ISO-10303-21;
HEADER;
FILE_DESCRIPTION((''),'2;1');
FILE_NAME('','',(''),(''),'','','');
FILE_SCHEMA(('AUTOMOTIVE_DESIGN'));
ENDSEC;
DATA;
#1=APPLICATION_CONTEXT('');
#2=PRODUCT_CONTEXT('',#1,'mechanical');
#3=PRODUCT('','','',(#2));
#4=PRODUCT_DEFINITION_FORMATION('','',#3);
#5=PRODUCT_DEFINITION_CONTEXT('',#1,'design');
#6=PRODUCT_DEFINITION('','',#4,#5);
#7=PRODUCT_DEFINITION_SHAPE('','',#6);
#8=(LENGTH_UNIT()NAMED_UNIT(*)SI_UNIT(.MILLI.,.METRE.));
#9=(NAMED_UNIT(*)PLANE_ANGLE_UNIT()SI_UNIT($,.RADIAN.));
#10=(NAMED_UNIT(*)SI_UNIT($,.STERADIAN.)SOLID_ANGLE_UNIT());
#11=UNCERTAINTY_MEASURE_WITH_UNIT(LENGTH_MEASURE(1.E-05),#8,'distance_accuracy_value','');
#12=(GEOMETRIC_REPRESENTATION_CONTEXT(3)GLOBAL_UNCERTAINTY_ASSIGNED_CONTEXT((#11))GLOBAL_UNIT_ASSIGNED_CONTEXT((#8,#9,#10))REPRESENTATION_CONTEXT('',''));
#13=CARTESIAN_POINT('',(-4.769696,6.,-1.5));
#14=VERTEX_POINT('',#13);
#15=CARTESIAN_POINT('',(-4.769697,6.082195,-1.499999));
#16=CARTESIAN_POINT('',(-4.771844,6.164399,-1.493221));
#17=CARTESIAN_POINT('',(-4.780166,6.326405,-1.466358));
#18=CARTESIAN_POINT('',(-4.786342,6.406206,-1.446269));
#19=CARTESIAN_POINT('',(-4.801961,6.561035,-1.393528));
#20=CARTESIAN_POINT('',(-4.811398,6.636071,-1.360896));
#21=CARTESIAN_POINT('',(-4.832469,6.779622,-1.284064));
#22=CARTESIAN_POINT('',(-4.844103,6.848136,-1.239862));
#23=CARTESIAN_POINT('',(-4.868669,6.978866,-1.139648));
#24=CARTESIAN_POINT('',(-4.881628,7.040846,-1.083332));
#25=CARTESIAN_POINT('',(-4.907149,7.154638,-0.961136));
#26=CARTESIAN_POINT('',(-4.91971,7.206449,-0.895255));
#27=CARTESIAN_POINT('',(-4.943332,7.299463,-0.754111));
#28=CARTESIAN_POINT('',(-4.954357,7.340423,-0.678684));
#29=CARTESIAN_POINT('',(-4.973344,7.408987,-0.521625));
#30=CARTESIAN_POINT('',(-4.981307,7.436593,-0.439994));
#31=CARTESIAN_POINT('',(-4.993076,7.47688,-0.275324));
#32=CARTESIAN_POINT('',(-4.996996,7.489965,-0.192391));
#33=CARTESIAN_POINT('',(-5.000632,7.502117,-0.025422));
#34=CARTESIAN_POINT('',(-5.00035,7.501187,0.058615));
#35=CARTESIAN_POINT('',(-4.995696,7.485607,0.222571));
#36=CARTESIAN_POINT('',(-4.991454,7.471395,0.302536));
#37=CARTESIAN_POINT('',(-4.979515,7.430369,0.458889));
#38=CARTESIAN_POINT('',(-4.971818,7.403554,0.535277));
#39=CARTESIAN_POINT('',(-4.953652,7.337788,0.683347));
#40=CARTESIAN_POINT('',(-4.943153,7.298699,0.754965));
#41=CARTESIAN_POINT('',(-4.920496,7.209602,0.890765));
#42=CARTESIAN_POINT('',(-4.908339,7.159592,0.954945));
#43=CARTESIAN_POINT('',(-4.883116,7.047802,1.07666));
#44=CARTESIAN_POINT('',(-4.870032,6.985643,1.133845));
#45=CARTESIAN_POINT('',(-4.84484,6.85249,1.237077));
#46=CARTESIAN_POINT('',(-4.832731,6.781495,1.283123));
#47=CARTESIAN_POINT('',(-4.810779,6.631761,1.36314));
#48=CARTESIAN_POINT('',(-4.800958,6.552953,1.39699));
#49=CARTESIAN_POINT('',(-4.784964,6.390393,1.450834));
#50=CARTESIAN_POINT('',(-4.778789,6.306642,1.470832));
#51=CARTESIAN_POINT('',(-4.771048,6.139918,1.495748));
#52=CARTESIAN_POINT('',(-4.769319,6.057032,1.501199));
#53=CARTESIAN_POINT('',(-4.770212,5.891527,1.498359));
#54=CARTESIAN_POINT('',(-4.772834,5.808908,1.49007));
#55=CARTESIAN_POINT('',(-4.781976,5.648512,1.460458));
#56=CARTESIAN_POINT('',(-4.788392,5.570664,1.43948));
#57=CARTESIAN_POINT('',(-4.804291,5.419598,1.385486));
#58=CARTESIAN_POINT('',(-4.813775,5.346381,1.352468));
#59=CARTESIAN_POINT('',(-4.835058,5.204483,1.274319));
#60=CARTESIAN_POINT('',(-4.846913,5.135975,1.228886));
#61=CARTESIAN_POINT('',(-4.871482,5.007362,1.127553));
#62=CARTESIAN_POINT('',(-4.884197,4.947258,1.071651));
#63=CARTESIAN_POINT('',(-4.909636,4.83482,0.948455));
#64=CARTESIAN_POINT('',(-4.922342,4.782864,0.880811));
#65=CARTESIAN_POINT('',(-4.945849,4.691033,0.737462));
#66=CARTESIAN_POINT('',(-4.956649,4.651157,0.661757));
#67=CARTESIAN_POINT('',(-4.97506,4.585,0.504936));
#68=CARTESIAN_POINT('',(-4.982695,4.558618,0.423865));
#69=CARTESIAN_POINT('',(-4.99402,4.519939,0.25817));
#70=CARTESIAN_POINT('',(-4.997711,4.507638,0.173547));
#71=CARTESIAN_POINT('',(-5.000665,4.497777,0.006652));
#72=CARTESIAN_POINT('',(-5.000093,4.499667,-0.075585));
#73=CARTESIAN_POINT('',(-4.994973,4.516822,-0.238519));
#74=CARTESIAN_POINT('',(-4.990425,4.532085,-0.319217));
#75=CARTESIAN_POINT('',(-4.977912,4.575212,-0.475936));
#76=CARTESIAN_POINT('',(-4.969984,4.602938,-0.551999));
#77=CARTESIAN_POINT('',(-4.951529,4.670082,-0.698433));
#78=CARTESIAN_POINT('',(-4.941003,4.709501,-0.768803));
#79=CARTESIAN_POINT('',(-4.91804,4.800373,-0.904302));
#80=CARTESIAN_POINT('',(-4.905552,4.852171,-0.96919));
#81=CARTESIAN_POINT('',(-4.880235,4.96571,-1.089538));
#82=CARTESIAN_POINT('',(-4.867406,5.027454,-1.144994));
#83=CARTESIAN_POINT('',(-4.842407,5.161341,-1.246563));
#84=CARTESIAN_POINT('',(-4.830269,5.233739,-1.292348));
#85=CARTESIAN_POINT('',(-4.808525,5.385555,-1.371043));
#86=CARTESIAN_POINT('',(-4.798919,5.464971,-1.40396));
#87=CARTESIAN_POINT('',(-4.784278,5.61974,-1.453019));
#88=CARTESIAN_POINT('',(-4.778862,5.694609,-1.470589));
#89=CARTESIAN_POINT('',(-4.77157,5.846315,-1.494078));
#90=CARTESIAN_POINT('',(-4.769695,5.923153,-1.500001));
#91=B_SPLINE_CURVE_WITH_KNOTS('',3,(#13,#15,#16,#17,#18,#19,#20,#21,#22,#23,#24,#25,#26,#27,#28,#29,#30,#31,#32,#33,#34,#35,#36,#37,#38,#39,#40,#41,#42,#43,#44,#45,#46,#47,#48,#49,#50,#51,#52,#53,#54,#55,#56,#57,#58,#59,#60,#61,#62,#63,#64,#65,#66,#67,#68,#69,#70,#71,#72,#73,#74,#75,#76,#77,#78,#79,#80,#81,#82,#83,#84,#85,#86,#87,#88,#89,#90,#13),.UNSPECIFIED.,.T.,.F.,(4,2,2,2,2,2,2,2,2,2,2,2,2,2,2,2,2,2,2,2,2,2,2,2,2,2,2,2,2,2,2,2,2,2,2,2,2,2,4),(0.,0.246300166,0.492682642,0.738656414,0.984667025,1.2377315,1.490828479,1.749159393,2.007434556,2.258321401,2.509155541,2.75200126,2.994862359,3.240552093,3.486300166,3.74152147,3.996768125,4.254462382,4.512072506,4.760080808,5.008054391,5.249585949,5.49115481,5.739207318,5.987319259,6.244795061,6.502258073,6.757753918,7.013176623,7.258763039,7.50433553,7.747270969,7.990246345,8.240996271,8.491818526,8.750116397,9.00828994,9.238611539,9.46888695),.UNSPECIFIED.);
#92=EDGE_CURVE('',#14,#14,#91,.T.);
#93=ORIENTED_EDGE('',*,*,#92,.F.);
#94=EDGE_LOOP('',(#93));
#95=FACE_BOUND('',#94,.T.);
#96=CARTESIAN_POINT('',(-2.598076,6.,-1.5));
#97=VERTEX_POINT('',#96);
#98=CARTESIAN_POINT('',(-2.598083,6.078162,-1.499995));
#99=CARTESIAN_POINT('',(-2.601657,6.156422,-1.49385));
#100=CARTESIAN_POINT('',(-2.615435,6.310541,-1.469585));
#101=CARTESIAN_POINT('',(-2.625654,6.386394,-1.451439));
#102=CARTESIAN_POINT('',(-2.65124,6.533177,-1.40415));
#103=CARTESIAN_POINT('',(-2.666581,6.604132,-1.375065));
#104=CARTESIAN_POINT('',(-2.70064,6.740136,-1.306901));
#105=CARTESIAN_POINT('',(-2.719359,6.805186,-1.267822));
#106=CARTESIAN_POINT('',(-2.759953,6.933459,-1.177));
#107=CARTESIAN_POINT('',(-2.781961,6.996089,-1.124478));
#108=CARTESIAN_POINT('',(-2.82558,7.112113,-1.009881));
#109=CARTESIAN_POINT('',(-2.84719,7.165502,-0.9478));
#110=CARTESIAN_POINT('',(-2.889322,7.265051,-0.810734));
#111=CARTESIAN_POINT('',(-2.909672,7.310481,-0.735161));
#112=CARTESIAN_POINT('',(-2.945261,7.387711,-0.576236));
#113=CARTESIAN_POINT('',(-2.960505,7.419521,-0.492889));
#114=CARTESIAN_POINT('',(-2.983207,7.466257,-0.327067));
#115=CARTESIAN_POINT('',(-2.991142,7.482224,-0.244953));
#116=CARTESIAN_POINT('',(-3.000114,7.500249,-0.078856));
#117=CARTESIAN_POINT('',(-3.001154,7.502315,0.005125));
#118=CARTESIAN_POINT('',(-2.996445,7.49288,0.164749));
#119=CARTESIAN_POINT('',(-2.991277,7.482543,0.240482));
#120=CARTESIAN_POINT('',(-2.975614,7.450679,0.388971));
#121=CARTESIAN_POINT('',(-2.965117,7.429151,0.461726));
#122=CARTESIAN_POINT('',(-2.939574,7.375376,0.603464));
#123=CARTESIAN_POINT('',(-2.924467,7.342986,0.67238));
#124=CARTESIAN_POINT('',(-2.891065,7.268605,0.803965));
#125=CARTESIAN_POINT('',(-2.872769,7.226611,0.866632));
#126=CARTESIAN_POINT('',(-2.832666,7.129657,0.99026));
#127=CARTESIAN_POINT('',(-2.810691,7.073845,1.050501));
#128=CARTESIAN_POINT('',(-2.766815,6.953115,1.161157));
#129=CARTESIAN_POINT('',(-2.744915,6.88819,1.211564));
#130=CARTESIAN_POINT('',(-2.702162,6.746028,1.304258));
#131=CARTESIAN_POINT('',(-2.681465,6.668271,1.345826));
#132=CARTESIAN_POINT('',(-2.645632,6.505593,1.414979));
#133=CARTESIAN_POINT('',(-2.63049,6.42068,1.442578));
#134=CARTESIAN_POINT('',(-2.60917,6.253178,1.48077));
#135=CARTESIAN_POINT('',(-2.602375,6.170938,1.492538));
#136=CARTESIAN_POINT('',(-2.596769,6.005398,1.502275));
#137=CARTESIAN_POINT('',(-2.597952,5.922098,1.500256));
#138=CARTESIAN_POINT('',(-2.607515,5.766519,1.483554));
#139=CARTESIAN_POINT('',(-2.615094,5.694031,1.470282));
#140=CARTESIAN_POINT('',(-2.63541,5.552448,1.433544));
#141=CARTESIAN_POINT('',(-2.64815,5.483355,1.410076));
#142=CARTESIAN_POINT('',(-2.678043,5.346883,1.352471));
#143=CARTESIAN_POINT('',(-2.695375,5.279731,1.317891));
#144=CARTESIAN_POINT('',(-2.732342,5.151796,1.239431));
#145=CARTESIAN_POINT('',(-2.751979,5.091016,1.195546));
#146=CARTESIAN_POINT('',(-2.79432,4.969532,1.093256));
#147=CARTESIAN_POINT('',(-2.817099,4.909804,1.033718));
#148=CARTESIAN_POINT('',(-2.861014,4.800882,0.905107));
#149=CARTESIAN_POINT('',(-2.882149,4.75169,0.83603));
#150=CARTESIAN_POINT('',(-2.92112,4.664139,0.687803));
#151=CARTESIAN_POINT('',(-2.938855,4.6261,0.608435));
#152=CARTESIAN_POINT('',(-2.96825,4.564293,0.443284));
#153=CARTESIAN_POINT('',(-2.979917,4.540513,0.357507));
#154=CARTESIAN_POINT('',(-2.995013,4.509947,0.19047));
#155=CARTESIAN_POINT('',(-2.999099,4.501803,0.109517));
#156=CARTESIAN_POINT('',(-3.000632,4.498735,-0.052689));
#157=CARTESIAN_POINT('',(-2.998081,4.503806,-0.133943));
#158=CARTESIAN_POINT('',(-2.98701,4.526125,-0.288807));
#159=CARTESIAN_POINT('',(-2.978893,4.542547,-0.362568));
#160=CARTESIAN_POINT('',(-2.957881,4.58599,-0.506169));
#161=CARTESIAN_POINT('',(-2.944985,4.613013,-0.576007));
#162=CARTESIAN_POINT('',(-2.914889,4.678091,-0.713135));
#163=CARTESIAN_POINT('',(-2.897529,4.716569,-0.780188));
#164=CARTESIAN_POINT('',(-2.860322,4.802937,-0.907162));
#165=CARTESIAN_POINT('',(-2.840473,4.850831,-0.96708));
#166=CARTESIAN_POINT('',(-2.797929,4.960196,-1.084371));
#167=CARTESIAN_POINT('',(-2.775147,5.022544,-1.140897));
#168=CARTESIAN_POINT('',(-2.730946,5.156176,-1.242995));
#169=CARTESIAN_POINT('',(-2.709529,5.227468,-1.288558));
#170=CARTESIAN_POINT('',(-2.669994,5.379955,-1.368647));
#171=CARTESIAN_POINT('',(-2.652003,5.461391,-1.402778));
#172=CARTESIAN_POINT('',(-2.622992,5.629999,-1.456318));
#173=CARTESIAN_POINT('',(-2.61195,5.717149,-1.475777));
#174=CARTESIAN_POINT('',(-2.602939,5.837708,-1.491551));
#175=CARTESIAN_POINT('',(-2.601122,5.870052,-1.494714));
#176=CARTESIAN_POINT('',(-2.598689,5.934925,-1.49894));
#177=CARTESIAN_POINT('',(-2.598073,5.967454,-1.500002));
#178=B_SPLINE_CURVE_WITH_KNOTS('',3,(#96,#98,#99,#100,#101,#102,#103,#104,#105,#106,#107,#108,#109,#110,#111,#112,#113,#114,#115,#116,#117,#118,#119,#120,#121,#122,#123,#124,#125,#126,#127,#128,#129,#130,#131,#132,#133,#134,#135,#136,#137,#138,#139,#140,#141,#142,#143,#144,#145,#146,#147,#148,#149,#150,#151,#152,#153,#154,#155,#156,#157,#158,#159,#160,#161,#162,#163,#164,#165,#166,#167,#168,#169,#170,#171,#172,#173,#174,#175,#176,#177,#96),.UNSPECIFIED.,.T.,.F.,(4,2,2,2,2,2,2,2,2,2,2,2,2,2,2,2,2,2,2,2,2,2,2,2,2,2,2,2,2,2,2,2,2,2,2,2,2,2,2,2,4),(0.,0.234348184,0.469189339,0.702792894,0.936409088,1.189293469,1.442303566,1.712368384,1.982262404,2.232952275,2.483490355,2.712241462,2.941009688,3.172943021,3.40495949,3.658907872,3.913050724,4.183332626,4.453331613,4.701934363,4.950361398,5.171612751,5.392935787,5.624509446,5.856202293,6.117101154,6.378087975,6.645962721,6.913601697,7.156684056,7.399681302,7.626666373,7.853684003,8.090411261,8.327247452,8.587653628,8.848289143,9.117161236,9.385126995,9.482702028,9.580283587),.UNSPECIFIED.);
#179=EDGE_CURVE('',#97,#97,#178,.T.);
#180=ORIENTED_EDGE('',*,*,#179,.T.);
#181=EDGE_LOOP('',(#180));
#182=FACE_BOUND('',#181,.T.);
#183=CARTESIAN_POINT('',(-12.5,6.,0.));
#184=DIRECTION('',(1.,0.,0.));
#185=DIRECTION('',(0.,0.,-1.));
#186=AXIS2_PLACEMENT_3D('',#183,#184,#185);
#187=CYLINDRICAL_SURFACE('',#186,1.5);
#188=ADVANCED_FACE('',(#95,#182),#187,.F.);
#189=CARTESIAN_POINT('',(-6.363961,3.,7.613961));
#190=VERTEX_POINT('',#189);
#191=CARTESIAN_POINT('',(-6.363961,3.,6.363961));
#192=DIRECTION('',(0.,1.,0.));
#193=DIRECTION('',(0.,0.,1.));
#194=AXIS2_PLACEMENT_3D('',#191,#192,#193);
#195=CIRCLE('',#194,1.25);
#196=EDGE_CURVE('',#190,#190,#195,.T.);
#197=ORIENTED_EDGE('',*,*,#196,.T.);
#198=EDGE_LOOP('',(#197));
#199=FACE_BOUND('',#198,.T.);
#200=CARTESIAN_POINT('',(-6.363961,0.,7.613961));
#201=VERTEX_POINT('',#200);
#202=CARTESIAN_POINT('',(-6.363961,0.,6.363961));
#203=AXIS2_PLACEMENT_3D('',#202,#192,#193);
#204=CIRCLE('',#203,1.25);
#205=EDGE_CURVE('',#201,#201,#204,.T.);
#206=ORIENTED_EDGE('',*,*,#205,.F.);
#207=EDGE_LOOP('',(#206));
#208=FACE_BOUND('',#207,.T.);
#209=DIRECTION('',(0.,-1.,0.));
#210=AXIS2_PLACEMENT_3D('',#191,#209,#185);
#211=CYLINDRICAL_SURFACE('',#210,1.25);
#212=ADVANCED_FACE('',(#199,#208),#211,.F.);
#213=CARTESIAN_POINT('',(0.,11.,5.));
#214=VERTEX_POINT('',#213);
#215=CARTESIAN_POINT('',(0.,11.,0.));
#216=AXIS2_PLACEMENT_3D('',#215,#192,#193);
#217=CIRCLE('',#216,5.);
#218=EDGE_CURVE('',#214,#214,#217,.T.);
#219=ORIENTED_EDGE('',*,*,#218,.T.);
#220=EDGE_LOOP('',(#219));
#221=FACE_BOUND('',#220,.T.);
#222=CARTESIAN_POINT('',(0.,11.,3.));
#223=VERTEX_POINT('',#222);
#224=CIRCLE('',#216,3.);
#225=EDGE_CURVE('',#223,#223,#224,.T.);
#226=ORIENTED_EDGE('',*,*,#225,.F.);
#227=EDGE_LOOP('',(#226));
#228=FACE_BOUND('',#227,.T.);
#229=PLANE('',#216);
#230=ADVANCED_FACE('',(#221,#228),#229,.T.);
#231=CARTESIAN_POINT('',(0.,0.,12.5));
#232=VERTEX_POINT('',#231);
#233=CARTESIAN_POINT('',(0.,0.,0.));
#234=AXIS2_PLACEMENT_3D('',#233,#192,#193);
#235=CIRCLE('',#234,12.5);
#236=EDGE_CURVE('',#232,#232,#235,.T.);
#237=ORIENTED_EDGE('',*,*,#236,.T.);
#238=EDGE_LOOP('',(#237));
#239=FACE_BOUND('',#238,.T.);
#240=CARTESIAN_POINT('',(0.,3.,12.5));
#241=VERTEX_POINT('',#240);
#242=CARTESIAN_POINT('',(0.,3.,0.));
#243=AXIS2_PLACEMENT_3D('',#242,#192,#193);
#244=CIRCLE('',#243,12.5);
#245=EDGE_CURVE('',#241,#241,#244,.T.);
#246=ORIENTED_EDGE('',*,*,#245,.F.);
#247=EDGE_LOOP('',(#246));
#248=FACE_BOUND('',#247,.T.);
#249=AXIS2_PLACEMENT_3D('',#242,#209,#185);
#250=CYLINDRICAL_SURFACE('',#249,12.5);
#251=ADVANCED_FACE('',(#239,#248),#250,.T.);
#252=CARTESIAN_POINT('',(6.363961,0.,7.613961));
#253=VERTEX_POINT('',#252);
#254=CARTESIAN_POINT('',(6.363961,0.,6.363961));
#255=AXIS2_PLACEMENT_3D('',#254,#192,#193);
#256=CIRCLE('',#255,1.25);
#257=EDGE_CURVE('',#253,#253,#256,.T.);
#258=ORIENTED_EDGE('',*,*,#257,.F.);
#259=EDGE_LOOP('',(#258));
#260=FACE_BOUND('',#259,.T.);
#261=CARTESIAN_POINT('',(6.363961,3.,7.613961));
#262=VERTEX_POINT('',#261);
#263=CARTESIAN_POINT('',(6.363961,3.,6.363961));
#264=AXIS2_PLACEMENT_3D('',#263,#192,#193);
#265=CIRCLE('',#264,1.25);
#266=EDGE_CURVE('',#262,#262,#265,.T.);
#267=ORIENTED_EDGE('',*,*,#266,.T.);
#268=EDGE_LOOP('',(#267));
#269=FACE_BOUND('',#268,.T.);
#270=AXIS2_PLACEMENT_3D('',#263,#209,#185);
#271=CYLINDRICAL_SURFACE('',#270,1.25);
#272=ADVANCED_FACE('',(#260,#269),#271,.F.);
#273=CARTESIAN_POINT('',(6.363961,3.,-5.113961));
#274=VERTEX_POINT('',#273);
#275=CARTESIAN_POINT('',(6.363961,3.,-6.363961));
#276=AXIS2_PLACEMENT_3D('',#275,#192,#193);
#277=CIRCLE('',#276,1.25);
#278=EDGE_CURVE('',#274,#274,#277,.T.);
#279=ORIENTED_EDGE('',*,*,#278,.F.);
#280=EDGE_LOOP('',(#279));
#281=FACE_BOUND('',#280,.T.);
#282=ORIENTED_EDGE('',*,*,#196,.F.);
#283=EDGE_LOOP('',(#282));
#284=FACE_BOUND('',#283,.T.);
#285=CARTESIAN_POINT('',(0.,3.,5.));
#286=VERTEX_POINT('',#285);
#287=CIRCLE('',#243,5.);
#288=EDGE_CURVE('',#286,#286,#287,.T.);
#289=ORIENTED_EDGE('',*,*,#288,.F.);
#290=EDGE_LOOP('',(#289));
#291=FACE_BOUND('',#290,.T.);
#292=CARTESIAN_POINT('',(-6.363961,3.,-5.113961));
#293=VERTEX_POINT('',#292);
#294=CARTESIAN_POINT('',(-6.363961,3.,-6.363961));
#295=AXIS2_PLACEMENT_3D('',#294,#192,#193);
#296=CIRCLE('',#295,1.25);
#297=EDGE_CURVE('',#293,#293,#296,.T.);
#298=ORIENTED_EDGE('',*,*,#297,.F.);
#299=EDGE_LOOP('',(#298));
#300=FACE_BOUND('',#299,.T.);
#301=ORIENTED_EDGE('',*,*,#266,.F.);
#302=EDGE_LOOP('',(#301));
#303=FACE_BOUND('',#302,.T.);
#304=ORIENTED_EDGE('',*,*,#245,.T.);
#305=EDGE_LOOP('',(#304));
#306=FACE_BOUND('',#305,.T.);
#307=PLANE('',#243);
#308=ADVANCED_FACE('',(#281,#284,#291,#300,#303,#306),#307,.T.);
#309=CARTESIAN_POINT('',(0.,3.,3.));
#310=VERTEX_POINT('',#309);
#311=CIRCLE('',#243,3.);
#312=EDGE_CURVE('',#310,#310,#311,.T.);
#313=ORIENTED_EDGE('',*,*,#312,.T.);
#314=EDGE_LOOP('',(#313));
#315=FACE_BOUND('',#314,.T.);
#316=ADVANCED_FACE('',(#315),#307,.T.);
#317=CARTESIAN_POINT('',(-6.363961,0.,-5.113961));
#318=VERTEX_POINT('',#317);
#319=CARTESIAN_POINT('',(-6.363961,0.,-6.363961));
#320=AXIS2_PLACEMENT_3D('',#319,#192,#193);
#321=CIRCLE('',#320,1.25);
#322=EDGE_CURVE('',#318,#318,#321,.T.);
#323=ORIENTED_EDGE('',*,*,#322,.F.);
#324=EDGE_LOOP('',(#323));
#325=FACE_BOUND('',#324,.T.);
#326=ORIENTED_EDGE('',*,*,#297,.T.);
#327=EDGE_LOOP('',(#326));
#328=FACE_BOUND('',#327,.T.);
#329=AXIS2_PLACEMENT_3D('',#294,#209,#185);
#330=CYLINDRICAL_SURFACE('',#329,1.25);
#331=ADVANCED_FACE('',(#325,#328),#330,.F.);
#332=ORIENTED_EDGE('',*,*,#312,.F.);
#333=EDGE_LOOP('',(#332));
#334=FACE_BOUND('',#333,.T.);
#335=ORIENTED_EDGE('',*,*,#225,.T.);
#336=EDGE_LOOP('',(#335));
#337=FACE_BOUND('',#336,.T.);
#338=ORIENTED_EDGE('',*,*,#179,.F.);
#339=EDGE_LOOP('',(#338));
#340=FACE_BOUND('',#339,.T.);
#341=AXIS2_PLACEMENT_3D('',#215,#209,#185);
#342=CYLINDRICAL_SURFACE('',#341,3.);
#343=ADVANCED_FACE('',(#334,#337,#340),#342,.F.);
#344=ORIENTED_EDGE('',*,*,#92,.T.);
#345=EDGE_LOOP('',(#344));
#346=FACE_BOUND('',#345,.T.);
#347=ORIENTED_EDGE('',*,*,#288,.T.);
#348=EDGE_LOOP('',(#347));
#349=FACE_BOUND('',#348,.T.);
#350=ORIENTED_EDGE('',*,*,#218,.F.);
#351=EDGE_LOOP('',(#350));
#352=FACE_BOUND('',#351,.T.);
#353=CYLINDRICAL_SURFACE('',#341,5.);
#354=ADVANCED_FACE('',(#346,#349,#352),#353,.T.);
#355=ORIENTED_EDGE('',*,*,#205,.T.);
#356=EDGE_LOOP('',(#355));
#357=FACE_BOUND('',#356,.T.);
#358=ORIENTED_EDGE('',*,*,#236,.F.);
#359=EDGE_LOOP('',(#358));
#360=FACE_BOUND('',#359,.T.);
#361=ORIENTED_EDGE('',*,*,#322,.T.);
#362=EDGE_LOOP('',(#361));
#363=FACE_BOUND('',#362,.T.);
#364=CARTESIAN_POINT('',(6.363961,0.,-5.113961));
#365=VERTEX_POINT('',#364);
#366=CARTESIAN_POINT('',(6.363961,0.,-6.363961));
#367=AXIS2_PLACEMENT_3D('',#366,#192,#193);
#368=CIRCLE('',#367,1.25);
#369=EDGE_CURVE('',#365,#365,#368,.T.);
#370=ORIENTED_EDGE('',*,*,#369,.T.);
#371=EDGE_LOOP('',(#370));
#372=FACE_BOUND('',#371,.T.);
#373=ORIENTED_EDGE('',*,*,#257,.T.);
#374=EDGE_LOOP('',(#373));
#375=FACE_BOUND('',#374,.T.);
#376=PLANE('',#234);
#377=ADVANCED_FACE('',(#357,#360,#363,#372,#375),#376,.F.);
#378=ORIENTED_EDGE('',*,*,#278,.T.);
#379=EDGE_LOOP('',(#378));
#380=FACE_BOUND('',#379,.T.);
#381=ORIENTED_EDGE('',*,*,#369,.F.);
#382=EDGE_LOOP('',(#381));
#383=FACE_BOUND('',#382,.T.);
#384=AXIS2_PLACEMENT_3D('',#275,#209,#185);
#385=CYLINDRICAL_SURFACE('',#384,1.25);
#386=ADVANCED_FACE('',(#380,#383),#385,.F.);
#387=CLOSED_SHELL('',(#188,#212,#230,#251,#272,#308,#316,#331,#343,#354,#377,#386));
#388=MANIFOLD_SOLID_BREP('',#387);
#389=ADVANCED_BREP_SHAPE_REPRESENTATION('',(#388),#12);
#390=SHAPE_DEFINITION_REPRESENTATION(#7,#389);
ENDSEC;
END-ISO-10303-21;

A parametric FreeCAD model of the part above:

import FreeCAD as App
import Part
import Sketcher

doc = App.newDocument("Part")
body = doc.addObject("PartDesign::Body", "Body")

# Sketch on XZ plane
sketch1 = body.newObject("Sketcher::SketchObject", "Sketch")
sketch1.AttachmentSupport = (doc.getObject("XZ_Plane"), [""])
sketch1.MapMode = "FlatFace"
sketch1.addGeometry(Part.Circle(App.Vector(0, 0, 0), App.Vector(0, 0, 1), 12.5), False)
sketch1.addGeometry(Part.Circle(App.Vector(-6.4, -6.4, 0), App.Vector(0, 0, 1), 1.2), False)
sketch1.addGeometry(Part.Circle(App.Vector(-6.4, 6.4, 0), App.Vector(0, 0, 1), 1.2), False)
sketch1.addGeometry(Part.Circle(App.Vector(6.4, -6.4, 0), App.Vector(0, 0, 1), 1.2), False)
sketch1.addGeometry(Part.Circle(App.Vector(6.4, 6.4, 0), App.Vector(0, 0, 1), 1.2), False)
sketch1.addConstraint(Sketcher.Constraint("Coincident", 0, 3, -1, 1))
sketch1.addConstraint(Sketcher.Constraint("Equal", 1, 2))
sketch1.addConstraint(Sketcher.Constraint("Equal", 2, 3))
sketch1.addConstraint(Sketcher.Constraint("Equal", 3, 4))
sketch1.addConstraint(Sketcher.Constraint("Symmetric", 2, 3, 3, 3, -1, 1))
sketch1.addConstraint(Sketcher.Constraint("Symmetric", 1, 3, 4, 3, -1, 1))
sketch1.addConstraint(Sketcher.Constraint("Symmetric", 1, 3, 3, 3, -2))
sketch1.addConstraint(Sketcher.Constraint("Diameter", 0, 25.0))
sketch1.addConstraint(Sketcher.Constraint("Diameter", 1, 2.5))
sketch1.addConstraint(Sketcher.Constraint("DistanceX", 1, 3, -1, 1, 6.363961))
sketch1.addConstraint(Sketcher.Constraint("DistanceY", 1, 3, -1, 1, 6.363961))
pad1 = body.newObject("PartDesign::Pad", "Pad")
pad1.Profile = sketch1
pad1.Length = 3
pad1.Reversed = True

# Sketch on XZ plane
sketch2 = body.newObject("Sketcher::SketchObject", "Sketch001")
sketch2.AttachmentSupport = (doc.getObject("XZ_Plane"), [""])
sketch2.MapMode = "FlatFace"
sketch2.AttachmentOffset = App.Placement(App.Vector(0, 0, -3), App.Rotation())
sketch2.addGeometry(Part.Circle(App.Vector(0, 0, 0), App.Vector(0, 0, 1), 5), False)
sketch2.addGeometry(Part.Circle(App.Vector(0, 0, 0), App.Vector(0, 0, 1), 3), False)
sketch2.addConstraint(Sketcher.Constraint("Coincident", 0, 3, -1, 1))
sketch2.addConstraint(Sketcher.Constraint("Coincident", 1, 3, -1, 1))
sketch2.addConstraint(Sketcher.Constraint("Diameter", 0, 10.0))
sketch2.addConstraint(Sketcher.Constraint("Diameter", 1, 6.0))
pad2 = body.newObject("PartDesign::Pad", "Pad001")
pad2.Profile = sketch2
pad2.Length = 8
pad2.Reversed = True

# Sketch on YZ plane
sketch3 = body.newObject("Sketcher::SketchObject", "Sketch002")
sketch3.AttachmentSupport = (doc.getObject("YZ_Plane"), [""])
sketch3.MapMode = "FlatFace"
sketch3.addGeometry(Part.Circle(App.Vector(6, 0, 0), App.Vector(0, 0, 1), 1.5), False)
sketch3.addConstraint(Sketcher.Constraint("PointOnObject", 0, 3, -1))
sketch3.addConstraint(Sketcher.Constraint("Diameter", 0, 3.0))
sketch3.addConstraint(Sketcher.Constraint("DistanceX", -1, 1, 0, 3, 6.0))
pocket1 = body.newObject("PartDesign::Pocket", "Pocket")
pocket1.Profile = sketch3
pocket1.Type = "ThroughAll"

doc.recompute()
